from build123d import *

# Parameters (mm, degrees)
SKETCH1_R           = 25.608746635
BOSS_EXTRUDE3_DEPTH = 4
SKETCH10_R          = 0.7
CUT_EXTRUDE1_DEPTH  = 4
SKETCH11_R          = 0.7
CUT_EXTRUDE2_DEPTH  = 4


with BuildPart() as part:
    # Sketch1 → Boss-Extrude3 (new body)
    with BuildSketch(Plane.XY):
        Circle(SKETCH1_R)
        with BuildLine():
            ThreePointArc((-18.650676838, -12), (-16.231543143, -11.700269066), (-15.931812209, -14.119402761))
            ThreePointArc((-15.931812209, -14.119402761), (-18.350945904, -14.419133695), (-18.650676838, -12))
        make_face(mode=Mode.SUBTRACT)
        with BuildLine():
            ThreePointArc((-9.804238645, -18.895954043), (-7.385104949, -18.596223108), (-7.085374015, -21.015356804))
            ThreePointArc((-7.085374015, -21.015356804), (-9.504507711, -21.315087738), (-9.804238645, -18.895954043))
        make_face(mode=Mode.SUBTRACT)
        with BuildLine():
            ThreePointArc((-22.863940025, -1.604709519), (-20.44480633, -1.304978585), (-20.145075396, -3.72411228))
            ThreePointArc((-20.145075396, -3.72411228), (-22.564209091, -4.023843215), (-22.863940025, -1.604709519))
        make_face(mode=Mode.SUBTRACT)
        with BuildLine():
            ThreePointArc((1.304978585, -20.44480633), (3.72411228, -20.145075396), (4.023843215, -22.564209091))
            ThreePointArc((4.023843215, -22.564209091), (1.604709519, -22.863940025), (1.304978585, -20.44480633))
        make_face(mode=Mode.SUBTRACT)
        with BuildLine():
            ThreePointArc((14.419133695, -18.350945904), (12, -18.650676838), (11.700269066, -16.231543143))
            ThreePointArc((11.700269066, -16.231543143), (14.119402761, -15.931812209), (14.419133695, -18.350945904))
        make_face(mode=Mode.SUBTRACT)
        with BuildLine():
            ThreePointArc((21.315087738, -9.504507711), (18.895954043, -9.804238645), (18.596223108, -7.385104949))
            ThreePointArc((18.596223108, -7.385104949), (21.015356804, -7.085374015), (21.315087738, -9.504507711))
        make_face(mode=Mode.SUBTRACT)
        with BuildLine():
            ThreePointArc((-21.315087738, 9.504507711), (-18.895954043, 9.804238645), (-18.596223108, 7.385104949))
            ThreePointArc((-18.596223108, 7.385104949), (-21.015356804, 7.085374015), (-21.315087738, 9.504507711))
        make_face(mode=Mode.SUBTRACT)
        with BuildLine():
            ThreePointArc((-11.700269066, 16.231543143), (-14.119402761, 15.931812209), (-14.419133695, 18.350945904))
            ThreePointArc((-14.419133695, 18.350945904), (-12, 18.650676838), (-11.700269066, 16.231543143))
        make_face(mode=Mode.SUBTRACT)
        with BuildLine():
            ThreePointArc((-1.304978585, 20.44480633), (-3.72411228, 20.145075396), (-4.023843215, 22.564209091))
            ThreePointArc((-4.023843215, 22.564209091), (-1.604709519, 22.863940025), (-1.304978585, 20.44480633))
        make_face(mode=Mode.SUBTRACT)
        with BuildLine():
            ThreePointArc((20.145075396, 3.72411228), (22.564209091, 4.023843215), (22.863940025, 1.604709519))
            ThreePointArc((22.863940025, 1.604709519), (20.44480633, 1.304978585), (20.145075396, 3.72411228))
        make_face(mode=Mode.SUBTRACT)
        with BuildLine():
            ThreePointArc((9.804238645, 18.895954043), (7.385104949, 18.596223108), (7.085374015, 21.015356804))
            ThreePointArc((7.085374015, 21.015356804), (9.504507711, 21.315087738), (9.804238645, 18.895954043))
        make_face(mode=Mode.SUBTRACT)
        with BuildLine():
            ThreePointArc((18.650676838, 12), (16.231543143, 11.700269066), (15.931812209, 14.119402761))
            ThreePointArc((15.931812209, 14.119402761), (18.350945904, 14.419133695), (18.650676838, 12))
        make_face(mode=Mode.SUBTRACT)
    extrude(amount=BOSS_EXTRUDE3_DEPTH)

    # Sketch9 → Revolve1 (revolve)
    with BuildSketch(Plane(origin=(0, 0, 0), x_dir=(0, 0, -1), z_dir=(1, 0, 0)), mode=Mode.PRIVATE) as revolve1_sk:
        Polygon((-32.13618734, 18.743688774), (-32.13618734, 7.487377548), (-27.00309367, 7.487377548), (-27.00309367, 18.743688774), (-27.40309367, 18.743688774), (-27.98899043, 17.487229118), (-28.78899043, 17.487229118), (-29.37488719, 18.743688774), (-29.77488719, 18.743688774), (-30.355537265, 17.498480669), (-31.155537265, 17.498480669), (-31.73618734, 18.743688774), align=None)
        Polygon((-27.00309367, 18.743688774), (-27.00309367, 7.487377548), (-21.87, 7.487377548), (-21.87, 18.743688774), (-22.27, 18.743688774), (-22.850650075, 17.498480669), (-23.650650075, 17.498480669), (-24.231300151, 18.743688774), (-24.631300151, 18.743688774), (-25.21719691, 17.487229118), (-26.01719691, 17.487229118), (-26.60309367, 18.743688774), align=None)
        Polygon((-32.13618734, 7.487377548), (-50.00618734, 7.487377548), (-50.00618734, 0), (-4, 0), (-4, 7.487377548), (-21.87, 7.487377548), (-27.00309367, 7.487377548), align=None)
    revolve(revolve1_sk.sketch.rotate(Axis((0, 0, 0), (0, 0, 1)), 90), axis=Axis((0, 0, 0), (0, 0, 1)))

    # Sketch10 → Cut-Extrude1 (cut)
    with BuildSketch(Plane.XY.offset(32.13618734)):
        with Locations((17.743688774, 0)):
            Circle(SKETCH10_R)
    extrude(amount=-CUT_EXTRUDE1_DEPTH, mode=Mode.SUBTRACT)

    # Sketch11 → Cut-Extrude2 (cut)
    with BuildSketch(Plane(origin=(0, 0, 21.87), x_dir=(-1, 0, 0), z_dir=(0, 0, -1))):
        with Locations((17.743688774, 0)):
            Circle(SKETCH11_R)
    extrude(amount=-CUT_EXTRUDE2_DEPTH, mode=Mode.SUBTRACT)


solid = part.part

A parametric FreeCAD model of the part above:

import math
import FreeCAD as App
import Part
import Sketcher
Q = App.Units.Quantity


def add_polygon(sketch, points):
    """Adds a closed chain of lines whose ends are joined by coincident constraints."""
    first, n = sketch.GeometryCount, len(points)
    for a, b in zip(points, points[1:] + points[:1]):
        sketch.addGeometry(Part.LineSegment(App.Vector(*a, 0), App.Vector(*b, 0)), False)
    for i in range(n):
        sketch.addConstraint(Sketcher.Constraint("Coincident", first + i, 2, first + (i + 1) % n, 1))

doc = App.newDocument("Part")
body = doc.addObject("PartDesign::Body", "Body")

# Sketch on XY plane
sketch1 = body.newObject("Sketcher::SketchObject", "Sketch")
sketch1.AttachmentSupport = (doc.getObject("XY_Plane"), [""])
sketch1.MapMode = "FlatFace"
sketch1.addGeometry(Part.Circle(App.Vector(0, 0, 0), App.Vector(0, 0, 1), 25.6), False)
sketch1.addGeometry(Part.Circle(App.Vector(-17.3, -13.1, 0), App.Vector(0, 0, 1), 1.7), False)
sketch1.addGeometry(Part.ArcOfCircle(Part.Circle(App.Vector(-8.4, -20, 0), App.Vector(0, 0, 1), 1.7), math.radians(142), math.radians(322)), False)
sketch1.addGeometry(Part.ArcOfCircle(Part.Circle(App.Vector(-8.4, -20, 0), App.Vector(0, 0, 1), 1.7), math.radians(-38), math.radians(142)), False)
sketch1.addGeometry(Part.ArcOfCircle(Part.Circle(App.Vector(-21.5, -2.7, 0), App.Vector(0, 0, 1), 1.7), math.radians(142), math.radians(322)), False)
sketch1.addGeometry(Part.ArcOfCircle(Part.Circle(App.Vector(-21.5, -2.7, 0), App.Vector(0, 0, 1), 1.7), math.radians(-38), math.radians(142)), False)
sketch1.addGeometry(Part.ArcOfCircle(Part.Circle(App.Vector(2.7, -21.5, 0), App.Vector(0, 0, 1), 1.7), math.radians(142), math.radians(322)), False)
sketch1.addGeometry(Part.ArcOfCircle(Part.Circle(App.Vector(2.7, -21.5, 0), App.Vector(0, 0, 1), 1.7), math.radians(-38), math.radians(142)), False)
sketch1.addGeometry(Part.Circle(App.Vector(13.1, -17.3, 0), App.Vector(0, 0, 1), 1.7), False)
sketch1.addGeometry(Part.ArcOfCircle(Part.Circle(App.Vector(20, -8.4, 0), App.Vector(0, 0, 1), 1.7), math.radians(-38), math.radians(142)), False)
sketch1.addGeometry(Part.ArcOfCircle(Part.Circle(App.Vector(20, -8.4, 0), App.Vector(0, 0, 1), 1.7), math.radians(142), math.radians(322)), False)
sketch1.addGeometry(Part.ArcOfCircle(Part.Circle(App.Vector(-20, 8.4, 0), App.Vector(0, 0, 1), 1.7), math.radians(142), math.radians(322)), False)
sketch1.addGeometry(Part.ArcOfCircle(Part.Circle(App.Vector(-20, 8.4, 0), App.Vector(0, 0, 1), 1.7), math.radians(-38), math.radians(142)), False)
sketch1.addGeometry(Part.Circle(App.Vector(-13.1, 17.3, 0), App.Vector(0, 0, 1), 1.7), False)
sketch1.addGeometry(Part.ArcOfCircle(Part.Circle(App.Vector(-2.7, 21.5, 0), App.Vector(0, 0, 1), 1.7), math.radians(-38), math.radians(142)), False)
sketch1.addGeometry(Part.ArcOfCircle(Part.Circle(App.Vector(-2.7, 21.5, 0), App.Vector(0, 0, 1), 1.7), math.radians(142), math.radians(322)), False)
sketch1.addGeometry(Part.ArcOfCircle(Part.Circle(App.Vector(21.5, 2.7, 0), App.Vector(0, 0, 1), 1.7), math.radians(142), math.radians(322)), False)
sketch1.addGeometry(Part.ArcOfCircle(Part.Circle(App.Vector(21.5, 2.7, 0), App.Vector(0, 0, 1), 1.7), math.radians(-38), math.radians(142)), False)
sketch1.addGeometry(Part.ArcOfCircle(Part.Circle(App.Vector(8.4, 20, 0), App.Vector(0, 0, 1), 1.7), math.radians(-38), math.radians(142)), False)
sketch1.addGeometry(Part.ArcOfCircle(Part.Circle(App.Vector(8.4, 20, 0), App.Vector(0, 0, 1), 1.7), math.radians(142), math.radians(322)), False)
sketch1.addGeometry(Part.Circle(App.Vector(17.3, 13.1, 0), App.Vector(0, 0, 1), 1.7), False)
sketch1.addConstraint(Sketcher.Constraint("Tangent", 2, 1, 3, 2))
sketch1.addConstraint(Sketcher.Constraint("Coincident", 3, 1, 2, 2))
sketch1.addConstraint(Sketcher.Constraint("Tangent", 4, 1, 5, 2))
sketch1.addConstraint(Sketcher.Constraint("Coincident", 5, 1, 4, 2))
sketch1.addConstraint(Sketcher.Constraint("Tangent", 6, 1, 7, 2))
sketch1.addConstraint(Sketcher.Constraint("Coincident", 7, 1, 6, 2))
sketch1.addConstraint(Sketcher.Constraint("Tangent", 9, 1, 10, 2))
sketch1.addConstraint(Sketcher.Constraint("Coincident", 10, 1, 9, 2))
sketch1.addConstraint(Sketcher.Constraint("Tangent", 11, 1, 12, 2))
sketch1.addConstraint(Sketcher.Constraint("Coincident", 12, 1, 11, 2))
sketch1.addConstraint(Sketcher.Constraint("Tangent", 14, 1, 15, 2))
sketch1.addConstraint(Sketcher.Constraint("Coincident", 15, 1, 14, 2))
sketch1.addConstraint(Sketcher.Constraint("Tangent", 16, 1, 17, 2))
sketch1.addConstraint(Sketcher.Constraint("Coincident", 17, 1, 16, 2))
sketch1.addConstraint(Sketcher.Constraint("Tangent", 18, 1, 19, 2))
sketch1.addConstraint(Sketcher.Constraint("Coincident", 19, 1, 18, 2))
sketch1.addConstraint(Sketcher.Constraint("Coincident", 0, 3, -1, 1))
sketch1.addConstraint(Sketcher.Constraint("Equal", 1, 2))
sketch1.addConstraint(Sketcher.Constraint("Equal", 3, 4))
sketch1.addConstraint(Sketcher.Constraint("Equal", 5, 6))
sketch1.addConstraint(Sketcher.Constraint("Equal", 7, 8))
sketch1.addConstraint(Sketcher.Constraint("Equal", 8, 9))
sketch1.addConstraint(Sketcher.Constraint("Equal", 10, 11))
sketch1.addConstraint(Sketcher.Constraint("Equal", 12, 13))
sketch1.addConstraint(Sketcher.Constraint("Equal", 13, 14))
sketch1.addConstraint(Sketcher.Constraint("Equal", 15, 16))
sketch1.addConstraint(Sketcher.Constraint("Equal", 17, 18))
sketch1.addConstraint(Sketcher.Constraint("Equal", 19, 20))
sketch1.addConstraint(Sketcher.Constraint("Symmetric", 9, 3, 11, 3, -1, 1))
sketch1.addConstraint(Sketcher.Constraint("Symmetric", 8, 3, 13, 3, -1, 1))
sketch1.addConstraint(Sketcher.Constraint("Symmetric", 6, 3, 14, 3, -1, 1))
sketch1.addConstraint(Sketcher.Constraint("Symmetric", 4, 3, 16, 3, -1, 1))
sketch1.addConstraint(Sketcher.Constraint("Symmetric", 2, 3, 18, 3, -1, 1))
sketch1.addConstraint(Sketcher.Constraint("Symmetric", 1, 3, 20, 3, -1, 1))
sketch1.addConstraint(Sketcher.Constraint("Diameter", 1, 3.447331))
sketch1.addConstraint(Sketcher.Constraint("Diameter", 0, 51.217493))
sketch1.addConstraint(Sketcher.Constraint("DistanceY", 1, 3, -1, 1, 13.059701))
sketch1.addConstraint(Sketcher.Constraint("DistanceX", -1, 1, 8, 3, 13.059701))
sketch1.addConstraint(Sketcher.Constraint("DistanceX", 4, 3, 2, 3, 13.059701))
sketch1.addConstraint(Sketcher.Constraint("DistanceY", 6, 3, 9, 3, 13.059701))
sketch1.addConstraint(Sketcher.Constraint("DistanceY", 2, 3, 2, 1, 1.059701))
sketch1.addConstraint(Sketcher.Constraint("DistanceY", 3, 1, 2, 3, 1.059701))
sketch1.addConstraint(Sketcher.Constraint("DistanceY", 4, 3, 4, 1, 1.059701))
sketch1.addConstraint(Sketcher.Constraint("DistanceY", 5, 1, 5, 3, 1.059701))
sketch1.addConstraint(Sketcher.Constraint("DistanceY", 6, 3, 6, 1, 1.059701))
sketch1.addConstraint(Sketcher.Constraint("DistanceY", 7, 1, 7, 3, 1.059701))
sketch1.addConstraint(Sketcher.Constraint("DistanceY", 9, 1, 9, 3, 1.059701))
sketch1.addConstraint(Sketcher.Constraint("DistanceY", 9, 3, 10, 1, 1.059701))
sketch1.addConstraint(Sketcher.Constraint("DistanceY", 11, 3, 11, 1, 1.059701))
sketch1.addConstraint(Sketcher.Constraint("DistanceY", 12, 1, 11, 3, 1.059701))
sketch1.addConstraint(Sketcher.Constraint("DistanceY", 14, 1, 14, 3, 1.059701))
sketch1.addConstraint(Sketcher.Constraint("DistanceY", 15, 3, 15, 1, 1.059701))
sketch1.addConstraint(Sketcher.Constraint("DistanceY", 16, 3, 16, 1, 1.059701))
sketch1.addConstraint(Sketcher.Constraint("DistanceY", 17, 1, 17, 3, 1.059701))
sketch1.addConstraint(Sketcher.Constraint("DistanceY", 18, 1, 18, 3, 1.059701))
sketch1.addConstraint(Sketcher.Constraint("DistanceY", 18, 3, 19, 1, 1.059701))
sketch1.addConstraint(Sketcher.Constraint("DistanceY", 4, 3, -1, 1, 2.664411))
sketch1.addConstraint(Sketcher.Constraint("DistanceX", -1, 1, 6, 3, 2.664411))
sketch1.addConstraint(Sketcher.Constraint("DistanceX", 2, 1, -1, 1, 9.804239))
sketch1.addConstraint(Sketcher.Constraint("DistanceY", 7, 1, -1, 1, 22.564209))
sketch1.addConstraint(Sketcher.Constraint("DistanceX", 1, 3, 2, 3, 8.846438))
sketch1.addConstraint(Sketcher.Constraint("DistanceY", 2, 3, 8, 3, 2.664411))
sketch1.addConstraint(Sketcher.Constraint("DistanceY", 8, 3, 9, 3, 8.846438))
sketch1.addConstraint(Sketcher.Constraint("DistanceX", 2, 3, 9, 3, 28.400462))
pad1 = body.newObject("PartDesign::Pad", "Pad")
pad1.Profile = sketch1
pad1.Length = 4

# Sketch on YZ plane
sketch2 = body.newObject("Sketcher::SketchObject", "Sketch001")
sketch2.AttachmentSupport = (doc.getObject("YZ_Plane"), [""])
sketch2.MapMode = "FlatFace"
add_polygon(sketch2, [(18.74, 32.14), (7.49, 32.14), (7.49, 50.01), (0, 50.01), (0, 4), (7.49, 4), (7.49, 21.87), (18.74, 21.87), (18.74, 22.27), (17.5, 22.85), (17.5, 23.65), (18.74, 24.23), (18.74, 24.63), (17.49, 25.22), (17.49, 26.02), (18.74, 26.6), (18.74, 27.4), (17.49, 27.99), (17.49, 28.79), (18.74, 29.37), (18.74, 29.77), (17.5, 30.36), (17.5, 31.16), (18.74, 31.74)])  # lines 0-23
sketch2.addConstraint(Sketcher.Constraint("Horizontal", 0))
sketch2.addConstraint(Sketcher.Constraint("Vertical", 1))
sketch2.addConstraint(Sketcher.Constraint("Horizontal", 2))
sketch2.addConstraint(Sketcher.Constraint("Vertical", 3))
sketch2.addConstraint(Sketcher.Constraint("Horizontal", 4))
sketch2.addConstraint(Sketcher.Constraint("Vertical", 5))
sketch2.addConstraint(Sketcher.Constraint("Horizontal", 6))
sketch2.addConstraint(Sketcher.Constraint("Vertical", 7))
sketch2.addConstraint(Sketcher.Constraint("Vertical", 9))
sketch2.addConstraint(Sketcher.Constraint("Vertical", 11))
sketch2.addConstraint(Sketcher.Constraint("Vertical", 13))
sketch2.addConstraint(Sketcher.Constraint("Vertical", 15))
sketch2.addConstraint(Sketcher.Constraint("Vertical", 17))
sketch2.addConstraint(Sketcher.Constraint("Vertical", 19))
sketch2.addConstraint(Sketcher.Constraint("Vertical", 21))
sketch2.addConstraint(Sketcher.Constraint("Vertical", 23))
sketch2.addConstraint(Sketcher.Constraint("PointOnObject", 2, 2, -2))
sketch2.addConstraint(Sketcher.Constraint("Parallel", 8, 12))
sketch2.addConstraint(Sketcher.Constraint("Parallel", 10, 14))
sketch2.addConstraint(Sketcher.Constraint("Parallel", 12, 16))
sketch2.addConstraint(Sketcher.Constraint("Parallel", 14, 18))
sketch2.addConstraint(Sketcher.Constraint("Parallel", 16, 20))
sketch2.addConstraint(Sketcher.Constraint("Parallel", 18, 22))
sketch2.addConstraint(Sketcher.Constraint("Vertical", 1, 2, 4, 2))
sketch2.addConstraint(Sketcher.Constraint("Vertical", 7, 2, 10, 2))
sketch2.addConstraint(Sketcher.Constraint("Vertical", 11, 2, 14, 2))
sketch2.addConstraint(Sketcher.Constraint("Vertical", 13, 2, 16, 2))
sketch2.addConstraint(Sketcher.Constraint("Vertical", 15, 2, 18, 2))
sketch2.addConstraint(Sketcher.Constraint("Vertical", 9, 2, 20, 2))
sketch2.addConstraint(Sketcher.Constraint("Vertical", 19, 2, 22, 2))
sketch2.addConstraint(Sketcher.Constraint("Equal", 1, 5))
sketch2.addConstraint(Sketcher.Constraint("Equal", 7, 11))
sketch2.addConstraint(Sketcher.Constraint("Equal", 9, 13))
sketch2.addConstraint(Sketcher.Constraint("Equal", 13, 15))
sketch2.addConstraint(Sketcher.Constraint("Equal", 15, 17))
sketch2.addConstraint(Sketcher.Constraint("Equal", 11, 19))
sketch2.addConstraint(Sketcher.Constraint("Equal", 17, 21))
sketch2.addConstraint(Sketcher.Constraint("Equal", 19, 23))
sketch2.addConstraint(Sketcher.Constraint("Equal", 8, 10))
sketch2.addConstraint(Sketcher.Constraint("Angle", 8, Q("155 deg")))
sketch2.addConstraint(Sketcher.Constraint("DistanceY", 7, 1, 7, 2, 0.4))
sketch2.addConstraint(Sketcher.Constraint("DistanceY", 9, 1, 9, 2, 0.8))
sketch2.addConstraint(Sketcher.Constraint("DistanceY", -1, 1, 3, 2, 4.0))
sketch2.addConstraint(Sketcher.Constraint("DistanceY", 1, 1, 1, 2, 17.87))
sketch2.addConstraint(Sketcher.Constraint("DistanceX", 0, 2, 0, 1, 11.256311))
sketch2.addConstraint(Sketcher.Constraint("DistanceY", -1, 1, 10, 2, 24.2313))
sketch2.addConstraint(Sketcher.Constraint("Distance", 12, 1.38635))
sketch2.addConstraint(Sketcher.Constraint("DistanceX", 2, 2, 2, 1, 7.487378))
revolution = body.newObject("PartDesign::Revolution", "Revolution")
revolution.Profile = sketch2
revolution.ReferenceAxis = (sketch2, ["V_Axis"])
revolution.Angle = 360

# Sketch on XY plane
sketch3 = body.newObject("Sketcher::SketchObject", "Sketch002")
sketch3.AttachmentSupport = (doc.getObject("XY_Plane"), [""])
sketch3.MapMode = "FlatFace"
sketch3.AttachmentOffset = App.Placement(App.Vector(0, 0, 32.136187), App.Rotation())
sketch3.addGeometry(Part.Circle(App.Vector(17.7, 0, 0), App.Vector(0, 0, 1), 0.7), False)
sketch3.addConstraint(Sketcher.Constraint("PointOnObject", 0, 3, -1))
sketch3.addConstraint(Sketcher.Constraint("Diameter", 0, 1.4))
sketch3.addConstraint(Sketcher.Constraint("DistanceX", -1, 1, 0, 3, 17.743689))
pocket1 = body.newObject("PartDesign::Pocket", "Pocket")
pocket1.Profile = sketch3
pocket1.Length = 4

# Sketch on XY plane
sketch4 = body.newObject("Sketcher::SketchObject", "Sketch003")
sketch4.AttachmentSupport = (doc.getObject("XY_Plane"), [""])
sketch4.MapMode = "FlatFace"
sketch4.AttachmentOffset = App.Placement(App.Vector(0, 0, 21.87), App.Rotation())
sketch4.addGeometry(Part.Circle(App.Vector(-17.7, 0, 0), App.Vector(0, 0, 1), 0.7), False)
sketch4.addConstraint(Sketcher.Constraint("PointOnObject", 0, 3, -1))
sketch4.addConstraint(Sketcher.Constraint("Diameter", 0, 1.4))
sketch4.addConstraint(Sketcher.Constraint("DistanceX", 0, 3, -1, 1, 17.743689))
pocket2 = body.newObject("PartDesign::Pocket", "Pocket001")
pocket2.Profile = sketch4
pocket2.Length = 4
pocket2.Reversed = True

doc.recompute()
